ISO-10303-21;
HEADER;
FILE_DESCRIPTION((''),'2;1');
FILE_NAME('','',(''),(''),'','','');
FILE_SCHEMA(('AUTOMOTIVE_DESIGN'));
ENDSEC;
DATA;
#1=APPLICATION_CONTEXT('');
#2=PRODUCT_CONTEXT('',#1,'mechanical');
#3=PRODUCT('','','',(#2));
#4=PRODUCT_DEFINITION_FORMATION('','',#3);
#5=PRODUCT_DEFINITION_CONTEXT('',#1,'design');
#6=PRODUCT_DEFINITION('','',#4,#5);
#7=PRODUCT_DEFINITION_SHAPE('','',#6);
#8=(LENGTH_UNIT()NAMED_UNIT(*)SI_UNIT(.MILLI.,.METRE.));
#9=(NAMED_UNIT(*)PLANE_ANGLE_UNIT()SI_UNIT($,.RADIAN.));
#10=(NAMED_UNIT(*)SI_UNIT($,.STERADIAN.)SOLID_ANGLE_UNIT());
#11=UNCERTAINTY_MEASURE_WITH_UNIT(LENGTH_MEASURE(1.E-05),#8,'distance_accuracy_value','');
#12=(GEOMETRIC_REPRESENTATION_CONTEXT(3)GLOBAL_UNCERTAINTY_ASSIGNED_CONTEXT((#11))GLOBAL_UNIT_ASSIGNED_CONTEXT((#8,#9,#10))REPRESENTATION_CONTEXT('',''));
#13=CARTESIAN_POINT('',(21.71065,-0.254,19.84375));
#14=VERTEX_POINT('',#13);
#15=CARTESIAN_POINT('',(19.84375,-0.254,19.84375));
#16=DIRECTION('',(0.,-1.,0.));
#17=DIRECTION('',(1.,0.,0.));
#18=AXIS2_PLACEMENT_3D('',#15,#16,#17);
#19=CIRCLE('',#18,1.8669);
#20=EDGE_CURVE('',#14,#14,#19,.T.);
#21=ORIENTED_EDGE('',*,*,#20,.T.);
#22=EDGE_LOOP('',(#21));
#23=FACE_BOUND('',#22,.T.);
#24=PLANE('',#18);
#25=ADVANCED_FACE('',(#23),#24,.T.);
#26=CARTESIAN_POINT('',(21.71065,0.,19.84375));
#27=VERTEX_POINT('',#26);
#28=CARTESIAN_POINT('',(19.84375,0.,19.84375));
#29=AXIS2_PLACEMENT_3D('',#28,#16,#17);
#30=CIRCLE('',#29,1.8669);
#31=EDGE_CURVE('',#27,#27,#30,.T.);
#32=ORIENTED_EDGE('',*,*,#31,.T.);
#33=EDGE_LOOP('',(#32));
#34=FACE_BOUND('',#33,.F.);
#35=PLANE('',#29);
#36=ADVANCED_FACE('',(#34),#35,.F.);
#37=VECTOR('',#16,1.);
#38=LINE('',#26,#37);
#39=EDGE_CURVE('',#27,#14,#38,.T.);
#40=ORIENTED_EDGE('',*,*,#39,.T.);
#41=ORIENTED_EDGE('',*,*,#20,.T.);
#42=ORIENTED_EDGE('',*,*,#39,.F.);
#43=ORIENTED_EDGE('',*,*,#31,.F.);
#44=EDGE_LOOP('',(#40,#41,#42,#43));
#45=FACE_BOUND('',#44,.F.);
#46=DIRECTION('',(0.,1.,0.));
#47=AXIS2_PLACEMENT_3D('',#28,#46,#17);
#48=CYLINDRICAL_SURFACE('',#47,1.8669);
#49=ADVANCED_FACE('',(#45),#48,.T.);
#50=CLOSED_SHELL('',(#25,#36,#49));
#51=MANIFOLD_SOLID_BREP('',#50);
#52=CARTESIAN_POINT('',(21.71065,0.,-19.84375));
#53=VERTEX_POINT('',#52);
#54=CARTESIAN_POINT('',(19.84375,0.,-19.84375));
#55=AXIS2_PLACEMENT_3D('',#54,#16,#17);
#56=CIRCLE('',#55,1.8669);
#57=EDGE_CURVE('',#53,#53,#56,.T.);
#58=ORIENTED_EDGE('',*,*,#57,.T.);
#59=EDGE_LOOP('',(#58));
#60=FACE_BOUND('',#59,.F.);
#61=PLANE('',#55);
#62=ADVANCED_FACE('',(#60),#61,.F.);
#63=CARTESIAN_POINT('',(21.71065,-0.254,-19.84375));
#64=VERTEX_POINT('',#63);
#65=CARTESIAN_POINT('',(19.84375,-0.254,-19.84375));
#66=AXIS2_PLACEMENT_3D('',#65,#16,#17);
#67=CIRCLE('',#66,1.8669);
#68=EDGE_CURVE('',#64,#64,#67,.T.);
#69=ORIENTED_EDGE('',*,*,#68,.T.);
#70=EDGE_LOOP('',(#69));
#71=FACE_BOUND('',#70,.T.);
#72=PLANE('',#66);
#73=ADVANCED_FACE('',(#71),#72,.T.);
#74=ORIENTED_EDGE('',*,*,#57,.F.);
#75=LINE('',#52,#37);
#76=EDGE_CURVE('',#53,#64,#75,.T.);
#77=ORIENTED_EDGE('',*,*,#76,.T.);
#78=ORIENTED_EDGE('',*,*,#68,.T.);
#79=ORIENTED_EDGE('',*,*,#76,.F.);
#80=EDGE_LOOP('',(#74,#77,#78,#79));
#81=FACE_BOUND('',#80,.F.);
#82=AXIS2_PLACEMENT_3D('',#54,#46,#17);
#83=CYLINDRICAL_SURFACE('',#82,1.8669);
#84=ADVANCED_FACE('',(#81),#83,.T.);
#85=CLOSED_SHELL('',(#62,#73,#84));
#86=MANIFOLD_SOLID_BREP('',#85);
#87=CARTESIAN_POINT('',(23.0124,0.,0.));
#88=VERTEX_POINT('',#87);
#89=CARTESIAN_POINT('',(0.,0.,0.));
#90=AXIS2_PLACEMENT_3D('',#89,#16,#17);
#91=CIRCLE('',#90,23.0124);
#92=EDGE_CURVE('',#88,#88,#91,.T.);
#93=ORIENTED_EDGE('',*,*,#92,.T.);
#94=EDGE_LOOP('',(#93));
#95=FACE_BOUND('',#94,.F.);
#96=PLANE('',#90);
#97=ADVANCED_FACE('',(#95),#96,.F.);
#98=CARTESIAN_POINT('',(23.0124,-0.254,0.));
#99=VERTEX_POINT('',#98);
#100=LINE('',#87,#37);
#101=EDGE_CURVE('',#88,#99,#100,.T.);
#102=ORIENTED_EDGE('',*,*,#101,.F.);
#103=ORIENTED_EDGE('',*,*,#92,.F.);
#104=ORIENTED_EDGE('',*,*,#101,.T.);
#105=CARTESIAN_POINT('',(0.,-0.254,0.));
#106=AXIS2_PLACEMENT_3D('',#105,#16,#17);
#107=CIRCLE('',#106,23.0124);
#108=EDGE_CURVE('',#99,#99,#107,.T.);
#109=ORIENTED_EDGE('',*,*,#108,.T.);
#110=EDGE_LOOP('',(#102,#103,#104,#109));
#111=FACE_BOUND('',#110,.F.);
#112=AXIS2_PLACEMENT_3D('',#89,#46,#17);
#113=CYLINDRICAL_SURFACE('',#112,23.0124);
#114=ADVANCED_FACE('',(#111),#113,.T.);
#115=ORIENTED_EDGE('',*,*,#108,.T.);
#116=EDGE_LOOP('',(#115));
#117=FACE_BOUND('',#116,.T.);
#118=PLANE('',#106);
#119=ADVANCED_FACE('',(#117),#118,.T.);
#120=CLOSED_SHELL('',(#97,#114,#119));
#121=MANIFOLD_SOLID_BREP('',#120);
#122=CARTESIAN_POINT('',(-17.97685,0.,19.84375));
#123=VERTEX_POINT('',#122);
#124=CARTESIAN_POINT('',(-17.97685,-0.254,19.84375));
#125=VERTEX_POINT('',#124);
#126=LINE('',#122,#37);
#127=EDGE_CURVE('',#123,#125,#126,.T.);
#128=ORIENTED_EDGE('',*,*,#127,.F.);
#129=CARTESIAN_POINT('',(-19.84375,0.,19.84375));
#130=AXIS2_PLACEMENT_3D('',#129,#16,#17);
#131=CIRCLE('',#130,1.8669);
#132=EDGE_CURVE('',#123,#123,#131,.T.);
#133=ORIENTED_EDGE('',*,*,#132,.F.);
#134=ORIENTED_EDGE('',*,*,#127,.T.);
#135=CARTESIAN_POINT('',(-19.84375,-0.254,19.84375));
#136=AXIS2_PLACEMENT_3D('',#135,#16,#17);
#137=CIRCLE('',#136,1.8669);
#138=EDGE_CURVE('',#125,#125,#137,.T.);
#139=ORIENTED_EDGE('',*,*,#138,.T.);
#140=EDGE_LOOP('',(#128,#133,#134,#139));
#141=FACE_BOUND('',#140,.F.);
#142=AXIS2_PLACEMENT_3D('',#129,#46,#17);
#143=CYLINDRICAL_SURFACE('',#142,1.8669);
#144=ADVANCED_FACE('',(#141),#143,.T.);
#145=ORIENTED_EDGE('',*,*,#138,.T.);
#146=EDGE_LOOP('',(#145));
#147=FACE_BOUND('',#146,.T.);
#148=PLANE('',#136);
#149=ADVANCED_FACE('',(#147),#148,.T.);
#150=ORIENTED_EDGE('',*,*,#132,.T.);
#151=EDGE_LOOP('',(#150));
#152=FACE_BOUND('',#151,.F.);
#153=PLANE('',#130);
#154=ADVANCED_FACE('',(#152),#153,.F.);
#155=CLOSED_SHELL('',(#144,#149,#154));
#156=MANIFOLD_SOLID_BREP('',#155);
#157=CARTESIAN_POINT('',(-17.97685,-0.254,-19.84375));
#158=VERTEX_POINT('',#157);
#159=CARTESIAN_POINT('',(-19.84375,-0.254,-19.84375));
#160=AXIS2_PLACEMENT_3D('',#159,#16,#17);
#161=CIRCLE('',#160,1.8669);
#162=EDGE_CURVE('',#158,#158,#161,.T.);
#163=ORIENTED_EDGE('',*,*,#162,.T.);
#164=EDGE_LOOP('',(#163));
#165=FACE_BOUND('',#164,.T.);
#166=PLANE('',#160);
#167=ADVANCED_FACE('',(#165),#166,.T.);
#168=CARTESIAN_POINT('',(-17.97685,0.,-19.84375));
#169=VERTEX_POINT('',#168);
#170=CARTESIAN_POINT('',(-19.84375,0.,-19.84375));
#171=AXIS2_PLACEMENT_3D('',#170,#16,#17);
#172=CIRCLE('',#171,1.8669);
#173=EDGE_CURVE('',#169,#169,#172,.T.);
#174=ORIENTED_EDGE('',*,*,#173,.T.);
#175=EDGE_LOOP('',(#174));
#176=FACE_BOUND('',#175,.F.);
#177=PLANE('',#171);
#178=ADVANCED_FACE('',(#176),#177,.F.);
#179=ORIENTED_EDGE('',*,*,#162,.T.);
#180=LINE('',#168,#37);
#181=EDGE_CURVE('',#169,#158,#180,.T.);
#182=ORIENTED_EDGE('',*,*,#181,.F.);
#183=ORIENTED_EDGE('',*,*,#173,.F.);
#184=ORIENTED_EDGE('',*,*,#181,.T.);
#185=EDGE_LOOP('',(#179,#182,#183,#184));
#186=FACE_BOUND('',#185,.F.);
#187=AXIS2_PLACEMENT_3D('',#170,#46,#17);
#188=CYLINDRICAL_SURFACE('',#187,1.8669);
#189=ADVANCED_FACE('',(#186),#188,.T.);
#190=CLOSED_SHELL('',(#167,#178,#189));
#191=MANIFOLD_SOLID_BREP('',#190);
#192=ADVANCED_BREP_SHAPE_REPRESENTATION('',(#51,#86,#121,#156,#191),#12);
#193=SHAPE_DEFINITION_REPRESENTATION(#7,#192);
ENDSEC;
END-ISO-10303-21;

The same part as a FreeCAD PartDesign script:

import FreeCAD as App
import Part
import Sketcher
Q = App.Units.Quantity

doc = App.newDocument("Part")
body = doc.addObject("PartDesign::Body", "Body")
body.AllowCompound = True

# Sketch on XZ plane
sketch1 = body.newObject("Sketcher::SketchObject", "Sketch")
sketch1.AttachmentSupport = (doc.getObject("XZ_Plane"), [""])
sketch1.MapMode = "FlatFace"
sketch1.addGeometry([
    Part.Circle(App.Vector(0, 0, 0), App.Vector(0, 0, 1), 23),  # 0
    Part.Circle(App.Vector(-19.8, 19.8, 0), App.Vector(0, 0, 1), 1.9),  # 1
    Part.Circle(App.Vector(19.8, 19.8, 0), App.Vector(0, 0, 1), 1.9),  # 2
    Part.Circle(App.Vector(19.8, -19.8, 0), App.Vector(0, 0, 1), 1.9),  # 3
    Part.Circle(App.Vector(-19.8, -19.8, 0), App.Vector(0, 0, 1), 1.9),  # 4
], False)
sketch1.addConstraint([
    Sketcher.Constraint("Coincident", 0, 3, -1, 1),
    Sketcher.Constraint("Equal", 1, 2),
    Sketcher.Constraint("Equal", 2, 3),
    Sketcher.Constraint("Equal", 3, 4),
    Sketcher.Constraint("Symmetric", 1, 3, 3, 3, -1, 1),
    Sketcher.Constraint("Symmetric", 2, 3, 4, 3, -1, 1),
    Sketcher.Constraint("Symmetric", 1, 3, 2, 3, -2),
    Sketcher.Constraint("Diameter", 0, Q("1.812 in")),
    Sketcher.Constraint("Diameter", 1, Q("0.147 in")),
    Sketcher.Constraint("DistanceX", 1, 3, -1, 1, Q("0.78125 in")),
    Sketcher.Constraint("DistanceY", -1, 1, 1, 3, Q("0.78125 in")),
])
pad1 = body.newObject("PartDesign::Pad", "Pad")
pad1.Profile = sketch1
pad1.Length = Q("0.01 in")

doc.recompute()
